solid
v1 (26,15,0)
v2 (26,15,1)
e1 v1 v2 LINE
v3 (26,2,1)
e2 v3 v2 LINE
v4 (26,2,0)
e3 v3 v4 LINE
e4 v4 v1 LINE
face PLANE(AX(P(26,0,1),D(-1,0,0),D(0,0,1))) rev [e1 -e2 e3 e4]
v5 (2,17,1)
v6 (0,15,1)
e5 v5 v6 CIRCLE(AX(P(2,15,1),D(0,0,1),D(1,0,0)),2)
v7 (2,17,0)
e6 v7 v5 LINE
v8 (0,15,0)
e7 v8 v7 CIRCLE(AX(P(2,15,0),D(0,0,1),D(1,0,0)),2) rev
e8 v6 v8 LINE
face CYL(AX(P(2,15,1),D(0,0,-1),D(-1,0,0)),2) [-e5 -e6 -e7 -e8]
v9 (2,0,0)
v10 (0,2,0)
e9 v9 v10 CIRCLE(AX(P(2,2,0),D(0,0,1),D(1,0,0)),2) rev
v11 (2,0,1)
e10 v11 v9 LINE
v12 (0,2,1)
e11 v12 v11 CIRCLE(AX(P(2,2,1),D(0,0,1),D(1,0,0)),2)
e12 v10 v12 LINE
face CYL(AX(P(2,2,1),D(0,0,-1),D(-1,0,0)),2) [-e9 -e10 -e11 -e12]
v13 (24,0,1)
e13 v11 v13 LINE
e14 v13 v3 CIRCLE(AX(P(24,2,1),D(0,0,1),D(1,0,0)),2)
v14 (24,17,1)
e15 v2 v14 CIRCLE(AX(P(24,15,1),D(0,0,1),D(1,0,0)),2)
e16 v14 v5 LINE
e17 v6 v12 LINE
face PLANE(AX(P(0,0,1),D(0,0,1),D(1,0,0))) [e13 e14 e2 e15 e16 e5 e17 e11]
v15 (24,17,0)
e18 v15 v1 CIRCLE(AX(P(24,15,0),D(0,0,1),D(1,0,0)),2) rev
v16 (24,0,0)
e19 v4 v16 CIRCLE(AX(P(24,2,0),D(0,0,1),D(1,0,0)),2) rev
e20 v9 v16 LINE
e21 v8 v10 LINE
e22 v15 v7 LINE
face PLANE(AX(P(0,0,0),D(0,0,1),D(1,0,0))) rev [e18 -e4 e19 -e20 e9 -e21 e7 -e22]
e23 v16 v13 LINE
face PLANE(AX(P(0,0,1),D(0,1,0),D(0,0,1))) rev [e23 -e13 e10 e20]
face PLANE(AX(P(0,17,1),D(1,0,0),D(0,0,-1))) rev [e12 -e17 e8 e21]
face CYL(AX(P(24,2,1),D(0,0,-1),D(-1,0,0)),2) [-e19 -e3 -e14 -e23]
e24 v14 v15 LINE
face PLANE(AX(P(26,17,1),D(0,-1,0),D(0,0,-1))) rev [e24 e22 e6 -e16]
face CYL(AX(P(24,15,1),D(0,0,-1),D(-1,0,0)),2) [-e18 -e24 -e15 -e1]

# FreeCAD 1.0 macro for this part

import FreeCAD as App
import Part
import Sketcher
from FreeCAD import Vector
Q = App.Units.Quantity


def edges_at(feature, points):
    """Names of the edges that pass closest to the given points."""
    edges = feature.Shape.Edges
    near = lambda p: min(range(len(edges)), key=lambda i: edges[i].distToShape(Part.Vertex(*p))[0])
    return sorted({f"Edge{near(p) + 1}" for p in points})

doc = App.newDocument("Part")
body = doc.addObject("PartDesign::Body", "Body")

# Sketch on XY plane
sketch1 = body.newObject("Sketcher::SketchObject", "Sketch")
sketch1.AttachmentSupport = (doc.getObject("XY_Plane"), [""])
sketch1.MapMode = "FlatFace"
sketch1.addGeometry(Part.LineSegment(Vector(0, 17, 0), Vector(0, 0, 0)), False)
sketch1.addGeometry(Part.LineSegment(Vector(0, 0, 0), Vector(26, 0, 0)), False)
sketch1.addGeometry(Part.LineSegment(Vector(26, 0, 0), Vector(26, 17, 0)), False)
sketch1.addGeometry(Part.LineSegment(Vector(26, 17, 0), Vector(0, 17, 0)), False)
sketch1.addConstraint(Sketcher.Constraint("Coincident", 0, 2, 1, 1))
sketch1.addConstraint(Sketcher.Constraint("Coincident", 1, 2, 2, 1))
sketch1.addConstraint(Sketcher.Constraint("Coincident", 2, 2, 3, 1))
sketch1.addConstraint(Sketcher.Constraint("Coincident", 3, 2, 0, 1))
sketch1.addConstraint(Sketcher.Constraint("Vertical", 0))
sketch1.addConstraint(Sketcher.Constraint("Horizontal", 1))
sketch1.addConstraint(Sketcher.Constraint("Vertical", 2))
sketch1.addConstraint(Sketcher.Constraint("Horizontal", 3))
sketch1.addConstraint(Sketcher.Constraint("Coincident", 0, 2, -1, 1))
sketch1.addConstraint(Sketcher.Constraint("DistanceX", 1, 1, 1, 2, Q("26 mm")))
sketch1.addConstraint(Sketcher.Constraint("DistanceY", 0, 2, 0, 1, Q("17 mm")))
pad1 = body.newObject("PartDesign::Pad", "Pad")
pad1.Profile = sketch1
pad1.Length = 1
doc.recompute()

fillet = body.newObject("PartDesign::Fillet", "Fillet")
fillet.Base = (pad1, edges_at(pad1, [
    (0, 17, 0.5),
    (26, 17, 0.5),
    (26, 0, 0.5),
    (0, 0, 0.5),
]))
fillet.Radius = 2

doc.recompute()
